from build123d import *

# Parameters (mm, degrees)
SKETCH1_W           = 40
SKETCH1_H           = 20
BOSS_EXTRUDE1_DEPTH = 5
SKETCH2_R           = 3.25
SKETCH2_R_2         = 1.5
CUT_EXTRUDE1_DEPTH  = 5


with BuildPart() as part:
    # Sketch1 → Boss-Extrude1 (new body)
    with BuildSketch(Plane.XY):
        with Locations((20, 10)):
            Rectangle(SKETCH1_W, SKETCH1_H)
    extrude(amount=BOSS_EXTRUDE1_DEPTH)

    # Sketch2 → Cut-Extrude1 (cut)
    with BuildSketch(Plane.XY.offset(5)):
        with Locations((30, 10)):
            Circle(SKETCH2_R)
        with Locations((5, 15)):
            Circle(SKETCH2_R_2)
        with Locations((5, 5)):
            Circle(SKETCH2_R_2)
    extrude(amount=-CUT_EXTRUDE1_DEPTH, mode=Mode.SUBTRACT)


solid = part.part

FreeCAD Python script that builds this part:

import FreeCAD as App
import Part
import Sketcher

V = App.Vector

doc = App.newDocument("Part")
body = doc.addObject("PartDesign::Body", "Body")

sketch1 = body.newObject("Sketcher::SketchObject", "Sketch")
sketch1.AttachmentSupport = (doc.getObject("XY_Plane"), [""])
sketch1.MapMode = "FlatFace"
sketch1.addGeometry(Part.LineSegment(V(0, 20, 0), V(0, 0, 0)), False)
sketch1.addGeometry(Part.LineSegment(V(0, 0, 0), V(40, 0, 0)), False)
sketch1.addGeometry(Part.LineSegment(V(40, 0, 0), V(40, 20, 0)), False)
sketch1.addGeometry(Part.LineSegment(V(40, 20, 0), V(0, 20, 0)), False)
sketch1.addConstraint(Sketcher.Constraint("Coincident", 0, 2, 1, 1))
sketch1.addConstraint(Sketcher.Constraint("Coincident", 1, 2, 2, 1))
sketch1.addConstraint(Sketcher.Constraint("Coincident", 2, 2, 3, 1))
sketch1.addConstraint(Sketcher.Constraint("Coincident", 3, 2, 0, 1))
sketch1.addConstraint(Sketcher.Constraint("Vertical", 0))
sketch1.addConstraint(Sketcher.Constraint("Horizontal", 1))
sketch1.addConstraint(Sketcher.Constraint("Vertical", 2))
sketch1.addConstraint(Sketcher.Constraint("Horizontal", 3))
sketch1.addConstraint(Sketcher.Constraint("Coincident", 0, 2, -1, 1))
sketch1.addConstraint(Sketcher.Constraint("DistanceX", 1, 1, 1, 2, 40.0))
sketch1.addConstraint(Sketcher.Constraint("DistanceY", 0, 2, 0, 1, 20.0))
pad1 = body.newObject("PartDesign::Pad", "Pad")
pad1.Profile = sketch1
pad1.Length = 5

sketch2 = body.newObject("Sketcher::SketchObject", "Sketch001")
sketch2.AttachmentSupport = (doc.getObject("XY_Plane"), [""])
sketch2.MapMode = "FlatFace"
sketch2.AttachmentOffset = App.Placement(V(0, 0, 5), App.Rotation())
sketch2.addGeometry(Part.Circle(V(30, 10, 0), V(0, 0, 1), 3.25), False)
sketch2.addGeometry(Part.Circle(V(5, 15, 0), V(0, 0, 1), 1.5), False)
sketch2.addGeometry(Part.Circle(V(5, 5, 0), V(0, 0, 1), 1.5), False)
sketch2.addConstraint(Sketcher.Constraint("Equal", 1, 2))
sketch2.addConstraint(Sketcher.Constraint("Vertical", 1, 3, 2, 3))
sketch2.addConstraint(Sketcher.Constraint("Diameter", 1, 3.0))
sketch2.addConstraint(Sketcher.Constraint("Diameter", 0, 6.5))
sketch2.addConstraint(Sketcher.Constraint("DistanceX", -1, 1, 0, 3, 30.0))
sketch2.addConstraint(Sketcher.Constraint("DistanceY", -1, 1, 0, 3, 10.0))
sketch2.addConstraint(Sketcher.Constraint("DistanceX", -1, 1, 1, 3, 5.0))
sketch2.addConstraint(Sketcher.Constraint("DistanceY", -1, 1, 1, 3, 15.0))
sketch2.addConstraint(Sketcher.Constraint("DistanceY", -1, 1, 2, 3, 5.0))
pocket1 = body.newObject("PartDesign::Pocket", "Pocket")
pocket1.Profile = sketch2
pocket1.Length = 5

doc.recompute()
